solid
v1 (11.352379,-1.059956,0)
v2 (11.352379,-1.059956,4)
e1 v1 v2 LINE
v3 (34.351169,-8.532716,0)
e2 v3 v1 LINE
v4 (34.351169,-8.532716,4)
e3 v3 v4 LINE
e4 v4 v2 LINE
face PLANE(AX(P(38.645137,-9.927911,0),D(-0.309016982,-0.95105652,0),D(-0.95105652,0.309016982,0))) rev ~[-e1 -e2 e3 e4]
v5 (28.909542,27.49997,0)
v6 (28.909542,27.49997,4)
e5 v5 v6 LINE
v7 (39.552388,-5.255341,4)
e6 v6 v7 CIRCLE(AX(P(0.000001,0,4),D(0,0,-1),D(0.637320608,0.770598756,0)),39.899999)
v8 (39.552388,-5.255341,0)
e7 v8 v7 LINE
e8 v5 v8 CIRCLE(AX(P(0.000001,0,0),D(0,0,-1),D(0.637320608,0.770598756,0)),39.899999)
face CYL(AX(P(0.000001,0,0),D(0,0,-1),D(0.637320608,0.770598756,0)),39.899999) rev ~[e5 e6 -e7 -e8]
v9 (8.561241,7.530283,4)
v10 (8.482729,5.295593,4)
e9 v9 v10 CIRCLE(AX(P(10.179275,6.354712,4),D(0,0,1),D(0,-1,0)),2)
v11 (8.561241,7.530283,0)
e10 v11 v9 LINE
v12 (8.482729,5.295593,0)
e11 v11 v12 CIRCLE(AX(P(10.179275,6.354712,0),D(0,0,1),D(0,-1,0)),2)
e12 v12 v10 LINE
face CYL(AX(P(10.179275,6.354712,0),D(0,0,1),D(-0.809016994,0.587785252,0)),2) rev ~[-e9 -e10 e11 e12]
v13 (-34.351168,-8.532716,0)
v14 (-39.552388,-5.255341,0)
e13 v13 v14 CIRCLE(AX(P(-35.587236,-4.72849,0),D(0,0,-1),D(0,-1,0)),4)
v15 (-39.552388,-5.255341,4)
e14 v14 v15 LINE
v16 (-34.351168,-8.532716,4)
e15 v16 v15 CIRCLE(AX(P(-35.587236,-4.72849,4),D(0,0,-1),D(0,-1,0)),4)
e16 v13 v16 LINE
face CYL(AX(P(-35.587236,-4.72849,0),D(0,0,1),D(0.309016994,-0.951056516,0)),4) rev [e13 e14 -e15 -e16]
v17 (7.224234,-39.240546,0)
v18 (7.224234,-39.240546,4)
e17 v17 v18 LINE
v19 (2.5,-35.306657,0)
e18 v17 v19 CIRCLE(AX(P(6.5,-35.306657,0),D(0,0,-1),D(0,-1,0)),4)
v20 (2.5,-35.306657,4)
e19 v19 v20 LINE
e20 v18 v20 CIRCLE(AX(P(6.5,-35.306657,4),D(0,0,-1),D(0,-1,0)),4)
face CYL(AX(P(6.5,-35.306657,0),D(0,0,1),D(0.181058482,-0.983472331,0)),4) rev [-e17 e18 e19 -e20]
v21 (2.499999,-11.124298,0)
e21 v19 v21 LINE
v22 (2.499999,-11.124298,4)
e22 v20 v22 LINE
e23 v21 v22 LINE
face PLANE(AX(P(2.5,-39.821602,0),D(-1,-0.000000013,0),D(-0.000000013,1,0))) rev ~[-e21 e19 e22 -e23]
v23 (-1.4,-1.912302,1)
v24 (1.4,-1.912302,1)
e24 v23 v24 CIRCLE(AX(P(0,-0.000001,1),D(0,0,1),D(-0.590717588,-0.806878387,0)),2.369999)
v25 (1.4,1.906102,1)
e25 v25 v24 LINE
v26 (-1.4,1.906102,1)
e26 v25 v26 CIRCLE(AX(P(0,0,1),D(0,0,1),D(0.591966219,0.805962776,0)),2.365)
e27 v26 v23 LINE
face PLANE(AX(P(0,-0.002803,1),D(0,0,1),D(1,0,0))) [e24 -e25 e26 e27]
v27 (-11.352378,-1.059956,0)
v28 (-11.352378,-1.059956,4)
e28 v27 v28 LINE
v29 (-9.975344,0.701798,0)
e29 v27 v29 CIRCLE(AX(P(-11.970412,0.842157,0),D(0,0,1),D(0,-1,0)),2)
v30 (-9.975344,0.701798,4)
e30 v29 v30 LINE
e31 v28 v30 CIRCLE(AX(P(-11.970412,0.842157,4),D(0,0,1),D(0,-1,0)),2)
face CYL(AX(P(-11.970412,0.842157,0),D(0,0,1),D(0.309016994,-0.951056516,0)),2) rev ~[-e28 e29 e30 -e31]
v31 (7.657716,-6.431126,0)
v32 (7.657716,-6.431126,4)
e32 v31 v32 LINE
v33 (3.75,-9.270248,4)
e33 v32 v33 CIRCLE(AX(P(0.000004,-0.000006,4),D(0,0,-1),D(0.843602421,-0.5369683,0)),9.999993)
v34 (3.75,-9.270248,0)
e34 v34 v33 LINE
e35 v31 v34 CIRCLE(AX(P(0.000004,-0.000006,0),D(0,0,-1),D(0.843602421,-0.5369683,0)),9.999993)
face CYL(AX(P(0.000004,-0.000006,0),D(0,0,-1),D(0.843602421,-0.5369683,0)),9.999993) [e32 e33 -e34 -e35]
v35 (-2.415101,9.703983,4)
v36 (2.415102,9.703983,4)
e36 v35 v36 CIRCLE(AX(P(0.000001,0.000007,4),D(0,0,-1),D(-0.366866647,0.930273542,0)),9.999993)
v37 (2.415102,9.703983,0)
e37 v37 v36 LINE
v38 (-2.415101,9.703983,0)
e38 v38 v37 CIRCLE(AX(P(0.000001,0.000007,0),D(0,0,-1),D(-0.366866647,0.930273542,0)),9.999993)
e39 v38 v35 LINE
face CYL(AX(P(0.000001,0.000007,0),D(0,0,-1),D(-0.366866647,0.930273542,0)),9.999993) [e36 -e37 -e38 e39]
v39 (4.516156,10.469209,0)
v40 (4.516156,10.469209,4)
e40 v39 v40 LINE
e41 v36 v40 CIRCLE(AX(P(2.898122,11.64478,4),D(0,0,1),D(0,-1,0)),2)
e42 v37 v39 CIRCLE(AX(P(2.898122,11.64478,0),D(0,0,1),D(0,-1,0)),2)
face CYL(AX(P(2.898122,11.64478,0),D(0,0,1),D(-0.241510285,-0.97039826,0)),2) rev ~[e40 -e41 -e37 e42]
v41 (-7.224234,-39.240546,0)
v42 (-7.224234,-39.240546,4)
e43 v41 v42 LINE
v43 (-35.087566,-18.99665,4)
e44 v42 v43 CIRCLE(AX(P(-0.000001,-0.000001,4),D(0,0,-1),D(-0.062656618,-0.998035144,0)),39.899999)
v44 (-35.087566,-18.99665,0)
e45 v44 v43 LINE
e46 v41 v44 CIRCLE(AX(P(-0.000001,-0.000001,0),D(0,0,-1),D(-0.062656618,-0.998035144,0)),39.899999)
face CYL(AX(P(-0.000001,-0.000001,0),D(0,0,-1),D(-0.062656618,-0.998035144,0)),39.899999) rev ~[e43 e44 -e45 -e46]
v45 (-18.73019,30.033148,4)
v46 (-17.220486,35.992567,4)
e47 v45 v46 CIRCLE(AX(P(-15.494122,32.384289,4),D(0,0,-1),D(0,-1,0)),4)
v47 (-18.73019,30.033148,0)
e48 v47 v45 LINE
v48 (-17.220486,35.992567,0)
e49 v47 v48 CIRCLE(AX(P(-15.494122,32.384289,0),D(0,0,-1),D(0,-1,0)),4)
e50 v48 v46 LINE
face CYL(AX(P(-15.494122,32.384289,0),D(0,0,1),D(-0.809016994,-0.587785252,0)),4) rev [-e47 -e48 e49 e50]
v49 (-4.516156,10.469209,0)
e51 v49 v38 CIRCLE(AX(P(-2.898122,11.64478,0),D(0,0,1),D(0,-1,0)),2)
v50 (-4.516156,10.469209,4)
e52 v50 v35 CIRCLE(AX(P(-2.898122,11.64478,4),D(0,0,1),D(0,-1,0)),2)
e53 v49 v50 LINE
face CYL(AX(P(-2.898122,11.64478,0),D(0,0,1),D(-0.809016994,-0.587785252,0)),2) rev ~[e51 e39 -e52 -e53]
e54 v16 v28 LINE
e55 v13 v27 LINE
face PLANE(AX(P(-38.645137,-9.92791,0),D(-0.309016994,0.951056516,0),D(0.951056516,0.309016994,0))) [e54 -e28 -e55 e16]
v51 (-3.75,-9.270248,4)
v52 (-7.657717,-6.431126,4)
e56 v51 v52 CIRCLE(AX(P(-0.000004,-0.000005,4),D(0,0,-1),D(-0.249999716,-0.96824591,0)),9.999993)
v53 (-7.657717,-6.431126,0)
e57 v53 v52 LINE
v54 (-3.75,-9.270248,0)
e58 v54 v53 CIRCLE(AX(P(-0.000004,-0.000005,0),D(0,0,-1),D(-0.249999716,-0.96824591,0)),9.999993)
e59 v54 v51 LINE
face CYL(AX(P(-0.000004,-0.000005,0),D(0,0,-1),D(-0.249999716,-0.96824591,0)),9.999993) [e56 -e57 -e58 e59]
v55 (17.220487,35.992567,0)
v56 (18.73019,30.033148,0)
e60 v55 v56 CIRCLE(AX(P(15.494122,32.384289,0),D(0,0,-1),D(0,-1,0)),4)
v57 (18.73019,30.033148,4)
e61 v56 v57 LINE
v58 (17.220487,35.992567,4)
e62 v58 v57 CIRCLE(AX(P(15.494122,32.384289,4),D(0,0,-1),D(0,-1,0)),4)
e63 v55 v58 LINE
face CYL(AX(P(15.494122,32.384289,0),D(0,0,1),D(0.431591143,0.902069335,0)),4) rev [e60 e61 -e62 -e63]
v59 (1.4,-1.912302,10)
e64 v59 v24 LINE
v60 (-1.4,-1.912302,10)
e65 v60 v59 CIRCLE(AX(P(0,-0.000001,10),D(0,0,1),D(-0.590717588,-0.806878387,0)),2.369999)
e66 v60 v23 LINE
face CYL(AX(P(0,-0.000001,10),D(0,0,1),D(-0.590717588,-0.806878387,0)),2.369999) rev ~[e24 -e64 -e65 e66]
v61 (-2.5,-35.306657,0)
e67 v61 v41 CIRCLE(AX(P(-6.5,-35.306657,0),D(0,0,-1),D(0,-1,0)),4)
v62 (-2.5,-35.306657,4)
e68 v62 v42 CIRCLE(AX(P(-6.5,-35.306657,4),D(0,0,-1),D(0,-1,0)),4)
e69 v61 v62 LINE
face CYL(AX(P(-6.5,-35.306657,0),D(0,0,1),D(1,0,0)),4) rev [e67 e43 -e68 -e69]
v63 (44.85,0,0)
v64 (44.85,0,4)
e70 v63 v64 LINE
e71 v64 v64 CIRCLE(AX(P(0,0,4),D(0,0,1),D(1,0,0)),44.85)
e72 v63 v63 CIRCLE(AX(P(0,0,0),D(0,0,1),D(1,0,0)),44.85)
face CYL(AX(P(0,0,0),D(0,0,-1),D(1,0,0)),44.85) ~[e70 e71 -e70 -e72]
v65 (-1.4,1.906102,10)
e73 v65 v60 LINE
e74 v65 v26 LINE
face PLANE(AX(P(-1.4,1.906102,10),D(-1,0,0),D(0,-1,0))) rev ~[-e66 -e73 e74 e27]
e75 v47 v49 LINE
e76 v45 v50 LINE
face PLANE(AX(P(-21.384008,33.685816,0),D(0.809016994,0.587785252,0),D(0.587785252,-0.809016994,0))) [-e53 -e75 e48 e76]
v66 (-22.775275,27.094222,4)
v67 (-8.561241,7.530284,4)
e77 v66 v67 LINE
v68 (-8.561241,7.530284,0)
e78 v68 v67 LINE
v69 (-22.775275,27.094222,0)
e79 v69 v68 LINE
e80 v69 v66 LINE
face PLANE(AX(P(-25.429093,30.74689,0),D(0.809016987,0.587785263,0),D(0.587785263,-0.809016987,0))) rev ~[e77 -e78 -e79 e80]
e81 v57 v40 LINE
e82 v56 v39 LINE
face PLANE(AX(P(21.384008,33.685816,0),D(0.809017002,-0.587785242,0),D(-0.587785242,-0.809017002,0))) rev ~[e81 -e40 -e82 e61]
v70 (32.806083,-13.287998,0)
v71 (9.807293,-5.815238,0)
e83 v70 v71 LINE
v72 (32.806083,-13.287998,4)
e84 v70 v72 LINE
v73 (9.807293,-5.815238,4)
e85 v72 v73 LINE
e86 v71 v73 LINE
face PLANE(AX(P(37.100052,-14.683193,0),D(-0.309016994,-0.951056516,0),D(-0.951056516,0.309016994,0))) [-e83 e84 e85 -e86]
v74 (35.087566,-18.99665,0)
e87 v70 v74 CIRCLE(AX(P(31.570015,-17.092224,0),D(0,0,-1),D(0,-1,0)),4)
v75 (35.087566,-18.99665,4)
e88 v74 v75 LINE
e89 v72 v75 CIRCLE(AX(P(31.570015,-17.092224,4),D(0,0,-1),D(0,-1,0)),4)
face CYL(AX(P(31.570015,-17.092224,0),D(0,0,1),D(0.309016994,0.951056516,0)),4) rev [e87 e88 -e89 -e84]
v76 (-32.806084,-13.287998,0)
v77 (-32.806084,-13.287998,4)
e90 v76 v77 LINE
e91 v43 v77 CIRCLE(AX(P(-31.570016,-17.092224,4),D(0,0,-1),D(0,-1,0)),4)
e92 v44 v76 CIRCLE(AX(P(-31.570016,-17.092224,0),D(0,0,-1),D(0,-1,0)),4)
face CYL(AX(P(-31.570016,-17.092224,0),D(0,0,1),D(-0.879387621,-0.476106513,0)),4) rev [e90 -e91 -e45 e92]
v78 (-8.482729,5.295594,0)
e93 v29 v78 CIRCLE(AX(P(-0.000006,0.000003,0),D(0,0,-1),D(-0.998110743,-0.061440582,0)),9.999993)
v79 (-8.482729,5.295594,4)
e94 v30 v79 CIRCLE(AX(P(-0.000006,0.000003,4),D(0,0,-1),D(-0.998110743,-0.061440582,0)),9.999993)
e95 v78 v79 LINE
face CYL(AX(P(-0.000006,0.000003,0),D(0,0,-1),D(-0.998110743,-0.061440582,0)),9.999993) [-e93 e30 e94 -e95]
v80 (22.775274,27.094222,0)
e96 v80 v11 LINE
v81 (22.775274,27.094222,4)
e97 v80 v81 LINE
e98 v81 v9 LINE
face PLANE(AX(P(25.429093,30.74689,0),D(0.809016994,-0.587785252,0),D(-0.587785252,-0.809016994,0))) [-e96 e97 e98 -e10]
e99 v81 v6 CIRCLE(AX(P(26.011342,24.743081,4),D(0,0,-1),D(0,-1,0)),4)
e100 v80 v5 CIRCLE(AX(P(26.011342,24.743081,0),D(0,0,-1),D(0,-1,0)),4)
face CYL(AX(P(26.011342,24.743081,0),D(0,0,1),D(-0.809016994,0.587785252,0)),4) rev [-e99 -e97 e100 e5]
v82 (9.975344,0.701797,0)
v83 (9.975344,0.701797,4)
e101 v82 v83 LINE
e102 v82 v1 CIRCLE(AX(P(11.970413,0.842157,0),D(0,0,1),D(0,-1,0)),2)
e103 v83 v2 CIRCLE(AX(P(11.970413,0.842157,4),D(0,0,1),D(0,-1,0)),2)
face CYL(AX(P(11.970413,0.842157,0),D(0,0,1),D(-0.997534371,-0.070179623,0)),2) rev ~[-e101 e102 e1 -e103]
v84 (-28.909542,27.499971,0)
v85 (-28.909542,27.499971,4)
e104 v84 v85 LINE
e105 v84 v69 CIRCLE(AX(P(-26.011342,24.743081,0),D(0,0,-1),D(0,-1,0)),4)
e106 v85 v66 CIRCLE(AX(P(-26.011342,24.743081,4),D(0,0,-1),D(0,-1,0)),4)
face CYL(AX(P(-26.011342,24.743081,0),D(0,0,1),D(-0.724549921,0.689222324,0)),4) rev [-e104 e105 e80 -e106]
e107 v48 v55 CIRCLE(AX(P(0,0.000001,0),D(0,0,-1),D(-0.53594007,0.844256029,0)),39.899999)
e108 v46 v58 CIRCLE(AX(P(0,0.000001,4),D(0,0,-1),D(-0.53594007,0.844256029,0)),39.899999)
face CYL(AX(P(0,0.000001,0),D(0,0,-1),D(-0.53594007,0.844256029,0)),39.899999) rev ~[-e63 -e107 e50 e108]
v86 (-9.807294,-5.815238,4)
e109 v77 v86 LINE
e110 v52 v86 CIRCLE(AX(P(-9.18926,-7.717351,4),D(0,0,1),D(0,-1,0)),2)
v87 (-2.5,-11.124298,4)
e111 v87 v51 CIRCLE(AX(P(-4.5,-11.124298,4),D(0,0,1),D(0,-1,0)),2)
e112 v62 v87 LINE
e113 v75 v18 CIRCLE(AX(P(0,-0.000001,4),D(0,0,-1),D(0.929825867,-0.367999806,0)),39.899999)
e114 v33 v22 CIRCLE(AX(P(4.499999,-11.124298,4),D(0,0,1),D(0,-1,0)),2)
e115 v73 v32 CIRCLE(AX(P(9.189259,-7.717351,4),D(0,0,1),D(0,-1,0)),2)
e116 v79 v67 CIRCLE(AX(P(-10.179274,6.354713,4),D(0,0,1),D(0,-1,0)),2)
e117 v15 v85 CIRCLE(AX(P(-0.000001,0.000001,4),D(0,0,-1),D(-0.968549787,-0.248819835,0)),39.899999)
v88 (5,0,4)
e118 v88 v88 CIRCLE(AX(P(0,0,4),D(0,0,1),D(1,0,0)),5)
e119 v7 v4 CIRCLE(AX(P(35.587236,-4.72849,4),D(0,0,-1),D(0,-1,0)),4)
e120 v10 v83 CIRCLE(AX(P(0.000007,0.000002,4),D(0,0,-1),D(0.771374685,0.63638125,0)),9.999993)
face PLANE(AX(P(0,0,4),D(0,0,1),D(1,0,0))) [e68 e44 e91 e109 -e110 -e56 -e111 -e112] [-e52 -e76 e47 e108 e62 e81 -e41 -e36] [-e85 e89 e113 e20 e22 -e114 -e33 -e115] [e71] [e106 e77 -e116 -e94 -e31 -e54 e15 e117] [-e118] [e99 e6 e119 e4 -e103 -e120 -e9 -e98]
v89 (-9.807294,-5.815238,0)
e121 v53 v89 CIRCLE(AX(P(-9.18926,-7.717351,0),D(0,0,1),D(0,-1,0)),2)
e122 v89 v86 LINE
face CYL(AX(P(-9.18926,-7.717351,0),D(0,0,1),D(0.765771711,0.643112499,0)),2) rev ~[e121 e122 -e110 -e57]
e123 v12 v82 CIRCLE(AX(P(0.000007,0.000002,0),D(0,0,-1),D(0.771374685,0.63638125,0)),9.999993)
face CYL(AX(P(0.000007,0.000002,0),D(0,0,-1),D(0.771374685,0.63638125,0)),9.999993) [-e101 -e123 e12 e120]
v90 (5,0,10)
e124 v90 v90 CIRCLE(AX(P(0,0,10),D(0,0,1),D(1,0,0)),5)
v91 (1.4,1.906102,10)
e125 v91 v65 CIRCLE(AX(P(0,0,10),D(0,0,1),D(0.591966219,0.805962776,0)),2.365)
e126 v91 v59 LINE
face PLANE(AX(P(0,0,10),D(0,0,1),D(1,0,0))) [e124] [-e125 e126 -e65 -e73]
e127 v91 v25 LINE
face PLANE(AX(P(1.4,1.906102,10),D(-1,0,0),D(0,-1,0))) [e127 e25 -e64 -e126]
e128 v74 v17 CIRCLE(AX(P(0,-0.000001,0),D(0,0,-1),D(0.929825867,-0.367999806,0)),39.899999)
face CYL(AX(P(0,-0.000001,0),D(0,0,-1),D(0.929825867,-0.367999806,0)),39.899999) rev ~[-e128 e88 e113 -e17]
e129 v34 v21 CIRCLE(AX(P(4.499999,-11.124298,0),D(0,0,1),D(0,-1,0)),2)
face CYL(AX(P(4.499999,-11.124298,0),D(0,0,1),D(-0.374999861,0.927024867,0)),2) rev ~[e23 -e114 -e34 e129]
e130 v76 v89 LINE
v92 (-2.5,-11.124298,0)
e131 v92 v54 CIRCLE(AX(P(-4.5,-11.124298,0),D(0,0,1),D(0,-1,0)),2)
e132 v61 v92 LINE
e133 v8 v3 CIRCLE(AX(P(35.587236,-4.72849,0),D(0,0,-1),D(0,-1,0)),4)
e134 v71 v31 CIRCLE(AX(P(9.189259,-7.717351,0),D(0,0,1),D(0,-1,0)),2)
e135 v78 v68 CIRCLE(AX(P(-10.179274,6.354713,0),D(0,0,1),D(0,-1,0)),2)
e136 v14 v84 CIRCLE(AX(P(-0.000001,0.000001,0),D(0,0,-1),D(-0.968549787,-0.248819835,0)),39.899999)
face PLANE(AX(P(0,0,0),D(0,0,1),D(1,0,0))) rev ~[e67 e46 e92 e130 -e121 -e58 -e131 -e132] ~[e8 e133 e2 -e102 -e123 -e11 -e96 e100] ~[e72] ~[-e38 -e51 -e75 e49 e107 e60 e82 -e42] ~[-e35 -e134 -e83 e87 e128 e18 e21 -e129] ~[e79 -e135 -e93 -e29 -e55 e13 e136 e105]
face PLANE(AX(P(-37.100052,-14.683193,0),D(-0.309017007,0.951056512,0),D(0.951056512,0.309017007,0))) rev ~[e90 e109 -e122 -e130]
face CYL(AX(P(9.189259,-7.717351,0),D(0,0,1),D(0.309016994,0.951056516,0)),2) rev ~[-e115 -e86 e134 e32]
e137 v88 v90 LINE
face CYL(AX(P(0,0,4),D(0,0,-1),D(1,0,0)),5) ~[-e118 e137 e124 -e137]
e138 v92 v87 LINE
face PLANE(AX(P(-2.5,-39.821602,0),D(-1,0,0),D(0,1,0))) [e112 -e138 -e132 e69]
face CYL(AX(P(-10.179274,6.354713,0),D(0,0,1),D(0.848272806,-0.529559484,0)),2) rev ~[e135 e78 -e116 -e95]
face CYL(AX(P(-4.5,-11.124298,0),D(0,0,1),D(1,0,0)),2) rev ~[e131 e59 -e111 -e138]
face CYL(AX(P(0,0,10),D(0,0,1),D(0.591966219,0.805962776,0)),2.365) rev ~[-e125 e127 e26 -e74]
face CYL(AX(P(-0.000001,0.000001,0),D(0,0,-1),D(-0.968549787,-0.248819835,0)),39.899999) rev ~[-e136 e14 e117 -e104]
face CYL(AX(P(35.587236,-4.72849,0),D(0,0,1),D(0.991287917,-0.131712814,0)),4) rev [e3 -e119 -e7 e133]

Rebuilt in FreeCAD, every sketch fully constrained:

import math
import FreeCAD as App
import Part
import Sketcher
from FreeCAD import Vector
Q = App.Units.Quantity


def edges_at(feature, points):
    """Names of the edges that pass closest to the given points."""
    edges = feature.Shape.Edges
    near = lambda p: min(range(len(edges)), key=lambda i: edges[i].distToShape(Part.Vertex(*p))[0])
    return sorted({f"Edge{near(p) + 1}" for p in points})

doc = App.newDocument("Part")
params = doc.addObject("Spreadsheet::Sheet", "Params")
for row, (alias, value) in enumerate([
    ("sketch1_diameter", "89.7 mm"),
    ("pad1_length", "4 mm"),
    ("sketch2_radius", "39.899999 mm"),
    ("pocket1_length", "4 mm"),
    ("sketch3_diameter", "10 mm"),
    ("pad2_length", "6 mm"),
    ("sketch4_radius", "2.369999 mm"),
    ("pocket2_length", "9 mm"),
    ("fillet_radius", "2 mm"),
    ("fillet2_radius", "4 mm"),
], start=1):
    params.set(f"A{row}", alias)
    params.set(f"B{row}", "=" + value)
    params.setAlias(f"B{row}", alias)

body = doc.addObject("PartDesign::Body", "Body")

# Sketch on XY plane
sketch1 = body.newObject("Sketcher::SketchObject", "Sketch")
sketch1.AttachmentSupport = (doc.getObject("XY_Plane"), [""])
sketch1.MapMode = "FlatFace"
sketch1.addGeometry(Part.Circle(Vector(0, 0, 0), Vector(0, 0, 1), 45), False)
sketch1.addConstraint([
    Sketcher.Constraint("Coincident", 0, 3, -1, 1),
    Sketcher.Constraint("Diameter", 0, 89.7),
])
sketch1.setExpression("Constraints[1]", "Params.sketch1_diameter")
pad1 = body.newObject("PartDesign::Pad", "Pad")
pad1.Profile = sketch1
pad1.setExpression("Length", "Params.pad1_length")

# Sketch on XY plane
sketch2 = body.newObject("Sketcher::SketchObject", "Sketch001")
sketch2.AttachmentSupport = (doc.getObject("XY_Plane"), [""])
sketch2.MapMode = "FlatFace"
sketch2.addGeometry([
    Part.LineSegment(Vector(-2, -10, 0), Vector(-2, -40, 0)),
    Part.ArcOfCircle(Part.Circle(Vector(0, 0, 0), Vector(0, 0, 1), 40), math.radians(-158), math.radians(-94)),
    Part.LineSegment(Vector(-37, -15, 0), Vector(-8, -5, 0)),
    Part.ArcOfCircle(Part.Circle(Vector(0, 0, 0), Vector(0, 0, 1), 10), math.radians(-148), math.radians(-104)),
], False)
sketch2.addConstraint([
    Sketcher.Constraint("Coincident", 0, 2, 1, 2),
    Sketcher.Constraint("Coincident", 1, 1, 2, 1),
    Sketcher.Constraint("Coincident", 2, 2, 3, 1),
    Sketcher.Constraint("Coincident", 3, 2, 0, 1),
    Sketcher.Constraint("Vertical", 0),
    Sketcher.Constraint("Coincident", 1, 3, -1, 1),
    Sketcher.Constraint("Coincident", 3, 3, -1, 1),
    Sketcher.Constraint("Radius", 1, 39.899999),
    Sketcher.Constraint("Angle", 2, Q("18.000001 deg")),
    Sketcher.Constraint("DistanceX", 0, 2, -1, 1, 2.5),
    Sketcher.Constraint("Radius", 3, 9.999993),
    Sketcher.Constraint("DistanceX", 1, 1, 1, 3, 37.100051),
])
sketch2.setExpression("Constraints[7]", "Params.sketch2_radius")
pocket1 = body.newObject("PartDesign::Pocket", "Pocket")
pocket1.Profile = sketch2
pocket1.setExpression("Length", "Params.pocket1_length")
pocket1.Reversed = True
doc.recompute()

polarpattern = body.newObject("PartDesign::PolarPattern", "PolarPattern")
polarpattern.Originals = [pocket1]
polarpattern.Axis = (doc.getObject("Z_Axis"), [""])
polarpattern.Angle = 360
polarpattern.Occurrences = 5
body.Tip = polarpattern

# Sketch on XY plane
sketch3 = body.newObject("Sketcher::SketchObject", "Sketch002")
sketch3.AttachmentSupport = (doc.getObject("XY_Plane"), [""])
sketch3.MapMode = "FlatFace"
sketch3.AttachmentOffset = App.Placement(Vector(0, 0, 4), App.Rotation())
sketch3.addGeometry(Part.Circle(Vector(0, 0, 0), Vector(0, 0, 1), 5), False)
sketch3.addConstraint([
    Sketcher.Constraint("Coincident", 0, 3, -1, 1),
    Sketcher.Constraint("Diameter", 0, 10.0),
])
sketch3.setExpression("Constraints[1]", "Params.sketch3_diameter")
pad2 = body.newObject("PartDesign::Pad", "Pad001")
pad2.Profile = sketch3
pad2.setExpression("Length", "Params.pad2_length")

# Sketch on XY plane
sketch4 = body.newObject("Sketcher::SketchObject", "Sketch003")
sketch4.AttachmentSupport = (doc.getObject("XY_Plane"), [""])
sketch4.MapMode = "FlatFace"
sketch4.AttachmentOffset = App.Placement(Vector(0, 0, 10), App.Rotation())
sketch4.addGeometry([
    Part.LineSegment(Vector(-1.4, 1.9, 0), Vector(-1.4, -1.9, 0)),
    Part.ArcOfCircle(Part.Circle(Vector(0, 0, 0), Vector(0, 0, 1), 2.4), math.radians(-126), math.radians(-54)),
    Part.LineSegment(Vector(1.4, -1.9, 0), Vector(1.4, 1.9, 0)),
    Part.ArcOfCircle(Part.Circle(Vector(0, 0, 0), Vector(0, 0, 1), 2.4), math.radians(54), math.radians(126)),
], False)
sketch4.addConstraint([
    Sketcher.Constraint("Coincident", 0, 2, 1, 1),
    Sketcher.Constraint("Coincident", 1, 2, 2, 1),
    Sketcher.Constraint("Coincident", 2, 2, 3, 1),
    Sketcher.Constraint("Coincident", 3, 2, 0, 1),
    Sketcher.Constraint("Vertical", 0),
    Sketcher.Constraint("Vertical", 2),
    Sketcher.Constraint("Coincident", 1, 3, -1, 1),
    Sketcher.Constraint("Coincident", 3, 3, -1, 1),
    Sketcher.Constraint("Horizontal", 0, 2, 1, 2),
    Sketcher.Constraint("Radius", 1, 2.369999),
    Sketcher.Constraint("Radius", 3, 2.365),
    Sketcher.Constraint("DistanceX", 0, 2, -1, 1, 1.4),
])
sketch4.setExpression("Constraints[9]", "Params.sketch4_radius")
pocket2 = body.newObject("PartDesign::Pocket", "Pocket001")
pocket2.Profile = sketch4
pocket2.setExpression("Length", "Params.pocket2_length")
doc.recompute()

fillet = body.newObject("PartDesign::Fillet", "Fillet")
fillet.Base = (pocket2, edges_at(pocket2, [
    (-3.669, 9.303, 2),
    (3.669, 9.303, 2),
    (-7.714, 6.364, 2),
    (-9.981, -0.614, 2),
    (-8.436, -5.37, 2),
    (2.5, -9.682, 2),
    (8.436, -5.37, 2),
    (-2.5, -9.682, 2),
    (9.981, -0.614, 2),
    (7.714, 6.364, 2),
]))
fillet.setExpression("Radius", "Params.fillet_radius")
doc.recompute()

fillet2 = body.newObject("PartDesign::Fillet", "Fillet001")
fillet2.Base = (fillet, edges_at(fillet, [
    (-38.645, -9.928, 2),
    (-25.429, 30.747, 2),
    (21.384, 33.686, 2),
    (37.1, -14.683, 2),
    (-2.5, -39.822, 2),
    (-37.1, -14.683, 2),
    (2.5, -39.822, 2),
    (25.429, 30.747, 2),
    (38.645, -9.928, 2),
    (-21.384, 33.686, 2),
]))
fillet2.setExpression("Radius", "Params.fillet2_radius")

doc.recompute()
